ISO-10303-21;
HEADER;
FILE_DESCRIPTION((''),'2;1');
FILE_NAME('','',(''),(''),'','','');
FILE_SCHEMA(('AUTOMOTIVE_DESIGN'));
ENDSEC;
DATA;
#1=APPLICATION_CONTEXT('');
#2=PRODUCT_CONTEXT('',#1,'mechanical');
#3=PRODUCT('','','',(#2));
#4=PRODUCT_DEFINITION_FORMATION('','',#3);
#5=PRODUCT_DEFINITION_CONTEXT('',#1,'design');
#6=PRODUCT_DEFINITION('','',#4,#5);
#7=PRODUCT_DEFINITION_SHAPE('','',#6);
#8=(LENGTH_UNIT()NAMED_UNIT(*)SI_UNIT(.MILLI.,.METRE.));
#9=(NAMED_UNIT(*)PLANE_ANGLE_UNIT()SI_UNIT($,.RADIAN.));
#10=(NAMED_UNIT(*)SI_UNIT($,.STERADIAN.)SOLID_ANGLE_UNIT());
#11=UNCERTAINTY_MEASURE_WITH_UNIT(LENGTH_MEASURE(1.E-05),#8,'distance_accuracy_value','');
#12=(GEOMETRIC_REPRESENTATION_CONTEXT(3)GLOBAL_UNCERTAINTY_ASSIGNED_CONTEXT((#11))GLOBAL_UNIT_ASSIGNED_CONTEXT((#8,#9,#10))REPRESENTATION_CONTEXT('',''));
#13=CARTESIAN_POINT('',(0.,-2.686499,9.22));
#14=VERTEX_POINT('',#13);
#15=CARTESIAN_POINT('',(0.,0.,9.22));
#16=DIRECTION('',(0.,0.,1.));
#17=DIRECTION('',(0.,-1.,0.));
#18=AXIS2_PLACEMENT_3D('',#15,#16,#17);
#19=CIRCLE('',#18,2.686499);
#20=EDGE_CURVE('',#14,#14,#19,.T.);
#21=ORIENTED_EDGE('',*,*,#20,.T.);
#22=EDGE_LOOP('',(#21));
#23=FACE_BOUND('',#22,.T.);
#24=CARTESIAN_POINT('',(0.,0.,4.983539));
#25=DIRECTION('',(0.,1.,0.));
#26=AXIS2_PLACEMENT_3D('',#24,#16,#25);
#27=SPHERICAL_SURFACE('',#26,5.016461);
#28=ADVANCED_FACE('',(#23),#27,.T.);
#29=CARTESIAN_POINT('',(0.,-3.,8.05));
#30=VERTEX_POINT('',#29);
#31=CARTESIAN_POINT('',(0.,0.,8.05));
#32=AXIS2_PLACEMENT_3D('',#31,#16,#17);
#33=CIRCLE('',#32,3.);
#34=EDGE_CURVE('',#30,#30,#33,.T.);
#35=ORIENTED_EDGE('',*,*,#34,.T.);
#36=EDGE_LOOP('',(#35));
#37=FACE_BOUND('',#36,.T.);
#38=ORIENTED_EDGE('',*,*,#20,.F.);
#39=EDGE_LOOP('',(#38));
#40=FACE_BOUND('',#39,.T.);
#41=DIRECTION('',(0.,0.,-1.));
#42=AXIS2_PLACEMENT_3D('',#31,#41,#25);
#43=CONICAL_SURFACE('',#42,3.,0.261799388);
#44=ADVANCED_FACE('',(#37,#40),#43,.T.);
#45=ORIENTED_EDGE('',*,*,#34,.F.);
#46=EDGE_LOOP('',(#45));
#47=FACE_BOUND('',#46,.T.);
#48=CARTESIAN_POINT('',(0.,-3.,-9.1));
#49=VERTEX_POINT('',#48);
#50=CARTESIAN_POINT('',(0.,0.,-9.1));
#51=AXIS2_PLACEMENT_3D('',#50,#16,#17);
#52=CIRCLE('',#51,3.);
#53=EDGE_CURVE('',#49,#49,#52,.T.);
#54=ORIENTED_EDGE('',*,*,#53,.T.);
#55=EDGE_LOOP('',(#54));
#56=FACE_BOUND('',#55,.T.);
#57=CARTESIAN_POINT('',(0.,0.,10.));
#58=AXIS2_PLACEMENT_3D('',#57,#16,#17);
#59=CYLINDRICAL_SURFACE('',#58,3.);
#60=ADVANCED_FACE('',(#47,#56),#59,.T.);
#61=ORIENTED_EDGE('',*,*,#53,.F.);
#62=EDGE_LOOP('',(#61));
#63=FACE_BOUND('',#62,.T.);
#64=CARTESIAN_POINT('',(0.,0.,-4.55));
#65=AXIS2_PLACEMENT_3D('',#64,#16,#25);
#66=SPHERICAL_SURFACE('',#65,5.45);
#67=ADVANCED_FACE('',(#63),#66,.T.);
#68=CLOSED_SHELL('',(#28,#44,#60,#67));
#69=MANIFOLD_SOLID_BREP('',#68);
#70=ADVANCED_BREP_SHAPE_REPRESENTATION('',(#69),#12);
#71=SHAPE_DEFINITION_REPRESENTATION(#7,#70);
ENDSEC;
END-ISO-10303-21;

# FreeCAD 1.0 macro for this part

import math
import FreeCAD as App
import Part
import Sketcher

V = App.Vector
Q = App.Units.Quantity

doc = App.newDocument("Part")
params = doc.addObject("Spreadsheet::Sheet", "Params")
for row, (alias, value) in enumerate([
    ("sketch1_height", "20 mm"),
    ("sketch1_radius", "5.45 mm"),
    ("sketch1_height2", "17.15 mm"),
    ("revolution_angle", "360 deg"),
], start=1):
    params.set(f"A{row}", alias)
    params.set(f"B{row}", "=" + value)
    params.setAlias(f"B{row}", alias)

body = doc.addObject("PartDesign::Body", "Body")

sketch1 = doc.addObject("Sketcher::SketchObject", "Sketch")
body.addObject(sketch1)
sketch1.AttachmentSupport = (doc.YZ_Plane, [""])
sketch1.MapMode = "FlatFace"
sketch1.addGeometry([
    Part.LineSegment(V(0, 10, 0), V(0, -10, 0)),
    Part.ArcOfCircle(Part.Circle(V(0, -4.5, 0), V(0, 0, 1), 5.5), math.radians(-90), math.radians(-57)),
    Part.LineSegment(V(3, -9.1, 0), V(3, 8.1, 0)),
    Part.LineSegment(V(3, 8.1, 0), V(2.7, 9.2, 0)),
    Part.ArcOfCircle(Part.Circle(V(0, 5, 0), V(0, 0, 1), 5), math.radians(58), math.radians(90)),
], False)
sketch1.addConstraint([
    Sketcher.Constraint("Coincident", 0, 2, 1, 1),
    Sketcher.Constraint("Coincident", 1, 2, 2, 1),
    Sketcher.Constraint("Coincident", 2, 2, 3, 1),
    Sketcher.Constraint("Coincident", 3, 2, 4, 1),
    Sketcher.Constraint("Coincident", 4, 2, 0, 1),
    Sketcher.Constraint("Vertical", 0),
    Sketcher.Constraint("Vertical", 2),
    Sketcher.Constraint("Symmetric", 0, 2, 4, 2, -1, 1),
    Sketcher.Constraint("PointOnObject", 1, 3, -2),
    Sketcher.Constraint("PointOnObject", 4, 3, -2),
    Sketcher.Constraint("DistanceY", 0, 2, 0, 1, Q("20 mm")),
    Sketcher.Constraint("Angle", 3, Q("105 deg")),
    Sketcher.Constraint("Radius", 1, Q("5.45 mm")),
    Sketcher.Constraint("DistanceX", -1, 1, 1, 2, Q("3 mm")),
    Sketcher.Constraint("DistanceY", 2, 1, 2, 2, Q("17.15 mm")),
    Sketcher.Constraint("DistanceY", -1, 1, 3, 2, Q("9.22 mm")),
])
sketch1.setExpression("Constraints[10]", "Params.sketch1_height")
sketch1.setExpression("Constraints[12]", "Params.sketch1_radius")
sketch1.setExpression("Constraints[14]", "Params.sketch1_height2")
revolution = doc.addObject("PartDesign::Revolution", "Revolution")
body.addObject(revolution)
revolution.Profile = sketch1
revolution.ReferenceAxis = (sketch1, ["V_Axis"])
revolution.setExpression("Angle", "Params.revolution_angle")

doc.recompute()
